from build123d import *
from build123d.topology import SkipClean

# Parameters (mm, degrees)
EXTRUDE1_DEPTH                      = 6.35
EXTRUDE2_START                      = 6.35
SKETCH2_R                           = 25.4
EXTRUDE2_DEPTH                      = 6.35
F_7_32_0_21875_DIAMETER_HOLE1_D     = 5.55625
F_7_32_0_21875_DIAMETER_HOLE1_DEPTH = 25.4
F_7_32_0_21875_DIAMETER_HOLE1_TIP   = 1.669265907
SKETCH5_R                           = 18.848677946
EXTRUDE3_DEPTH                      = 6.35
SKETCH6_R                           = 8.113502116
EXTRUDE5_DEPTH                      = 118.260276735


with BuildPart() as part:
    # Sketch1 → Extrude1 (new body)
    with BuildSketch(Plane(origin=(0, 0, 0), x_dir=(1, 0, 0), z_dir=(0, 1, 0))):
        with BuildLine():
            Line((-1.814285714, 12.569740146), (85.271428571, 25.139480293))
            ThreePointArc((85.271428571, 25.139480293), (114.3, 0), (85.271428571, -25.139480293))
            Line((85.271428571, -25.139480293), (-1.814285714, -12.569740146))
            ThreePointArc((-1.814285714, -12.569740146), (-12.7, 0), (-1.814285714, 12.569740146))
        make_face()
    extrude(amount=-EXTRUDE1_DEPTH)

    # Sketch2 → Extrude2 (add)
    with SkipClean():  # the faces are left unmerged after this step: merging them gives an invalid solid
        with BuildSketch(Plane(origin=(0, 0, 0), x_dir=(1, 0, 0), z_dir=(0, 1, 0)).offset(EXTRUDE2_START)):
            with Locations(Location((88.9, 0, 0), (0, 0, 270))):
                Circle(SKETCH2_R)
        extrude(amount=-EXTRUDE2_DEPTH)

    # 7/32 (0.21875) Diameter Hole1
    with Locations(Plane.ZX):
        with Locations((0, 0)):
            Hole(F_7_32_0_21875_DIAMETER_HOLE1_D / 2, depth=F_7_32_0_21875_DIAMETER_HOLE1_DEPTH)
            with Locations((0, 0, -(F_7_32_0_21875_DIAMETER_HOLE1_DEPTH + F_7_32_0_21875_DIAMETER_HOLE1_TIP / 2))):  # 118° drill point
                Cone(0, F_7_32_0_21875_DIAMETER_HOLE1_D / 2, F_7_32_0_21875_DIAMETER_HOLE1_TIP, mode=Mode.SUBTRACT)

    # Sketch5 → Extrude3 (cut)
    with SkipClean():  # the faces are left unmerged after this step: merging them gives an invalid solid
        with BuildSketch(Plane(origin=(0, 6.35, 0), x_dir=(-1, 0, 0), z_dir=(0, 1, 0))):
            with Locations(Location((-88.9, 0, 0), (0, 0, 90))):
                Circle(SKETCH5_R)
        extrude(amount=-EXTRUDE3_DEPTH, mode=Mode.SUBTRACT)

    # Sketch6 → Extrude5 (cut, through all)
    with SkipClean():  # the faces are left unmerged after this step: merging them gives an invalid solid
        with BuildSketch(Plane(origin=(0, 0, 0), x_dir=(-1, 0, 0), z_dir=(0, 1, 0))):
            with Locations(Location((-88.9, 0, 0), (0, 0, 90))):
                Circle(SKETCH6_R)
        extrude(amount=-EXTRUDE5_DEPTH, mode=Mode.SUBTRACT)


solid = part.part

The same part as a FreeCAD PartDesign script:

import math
import FreeCAD as App
import Part
import Sketcher
Q = App.Units.Quantity

doc = App.newDocument("Part")
body = doc.addObject("PartDesign::Body", "Body")

# Sketch on XZ plane
sketch1 = body.newObject("Sketcher::SketchObject", "Sketch")
sketch1.AttachmentSupport = (doc.getObject("XZ_Plane"), [""])
sketch1.MapMode = "FlatFace"
sketch1.addGeometry([
    Part.LineSegment(App.Vector(85, -25, 0), App.Vector(-2, -13, 0)),
    Part.ArcOfCircle(Part.Circle(App.Vector(0, 0, 0), App.Vector(0, 0, 1), 13), math.radians(98), math.radians(262)),
    Part.LineSegment(App.Vector(-2, 13, 0), App.Vector(85, 25, 0)),
    Part.ArcOfCircle(Part.Circle(App.Vector(89, 0, 0), App.Vector(0, 0, 1), 25), math.radians(-98), math.radians(98)),
], False)
sketch1.addConstraint([
    Sketcher.Constraint("Tangent", 0, 2, 1, 2),
    Sketcher.Constraint("Tangent", 1, 1, 2, 1),
    Sketcher.Constraint("Tangent", 2, 2, 3, 2),
    Sketcher.Constraint("Tangent", 3, 1, 0, 1),
    Sketcher.Constraint("Coincident", 1, 3, -1, 1),
    Sketcher.Constraint("PointOnObject", 3, 3, -1),
    Sketcher.Constraint("Radius", 3, Q("1 in")),
    Sketcher.Constraint("Radius", 1, Q("0.5 in")),
    Sketcher.Constraint("DistanceX", -1, 1, 3, 3, Q("3.5 in")),
])
pad1 = body.newObject("PartDesign::Pad", "Pad")
pad1.Profile = sketch1
pad1.Length = Q("0.25 in")

# Sketch on XZ plane
sketch2 = body.newObject("Sketcher::SketchObject", "Sketch001")
sketch2.AttachmentSupport = (doc.getObject("XZ_Plane"), [""])
sketch2.MapMode = "FlatFace"
sketch2.AttachmentOffset = App.Placement(App.Vector(0, 0, -0.25 * 25.4), App.Rotation())
sketch2.addGeometry(Part.Circle(App.Vector(89, 0, 0), App.Vector(0, 0, 1), 25), False)
sketch2.addConstraint([
    Sketcher.Constraint("PointOnObject", 0, 3, -1),
    Sketcher.Constraint("Diameter", 0, Q("2 in")),
    Sketcher.Constraint("DistanceX", -1, 1, 0, 3, Q("3.5 in")),
])
pad2 = body.newObject("PartDesign::Pad", "Pad001")
pad2.Profile = sketch2
pad2.Length = Q("0.25 in")

# Sketch on XZ plane
sketch3 = body.newObject("Sketcher::SketchObject", "Sketch002")
sketch3.AttachmentSupport = (doc.getObject("XZ_Plane"), [""])
sketch3.MapMode = "FlatFace"
sketch3.addGeometry(Part.Circle(App.Vector(0, 0, 0), App.Vector(0, 0, 1), 2.8), False)
sketch3.addConstraint([
    Sketcher.Constraint("Coincident", 0, 3, -1, 1),
    Sketcher.Constraint("Diameter", 0, Q("0.21875 in")),
])
doc.recompute()
hole = body.newObject("PartDesign::Hole", "Hole")
hole.Profile = sketch3
hole.ThreadType = "None"
hole.Diameter = Q("0.21875 in")
hole.DepthType = "Dimension"
hole.Depth = Q("1 in")
hole.DrillPoint = "Angled"
hole.DrillPointAngle = 118
hole.Reversed = True

# Sketch on XZ plane
sketch4 = body.newObject("Sketcher::SketchObject", "Sketch003")
sketch4.AttachmentSupport = (doc.getObject("XZ_Plane"), [""])
sketch4.MapMode = "FlatFace"
sketch4.AttachmentOffset = App.Placement(App.Vector(0, 0, -0.25 * 25.4), App.Rotation())
sketch4.addGeometry(Part.Circle(App.Vector(89, 0, 0), App.Vector(0, 0, 1), 19), False)
sketch4.addConstraint([
    Sketcher.Constraint("PointOnObject", 0, 3, -1),
    Sketcher.Constraint("DistanceX", -1, 1, 0, 3, Q("3.5 in")),
    Sketcher.Constraint("Diameter", 0, Q("37.697356 mm")),
])
pocket1 = body.newObject("PartDesign::Pocket", "Pocket")
pocket1.Profile = sketch4
pocket1.Length = Q("0.25 in")
pocket1.Reversed = True

# Sketch on XZ plane
sketch5 = body.newObject("Sketcher::SketchObject", "Sketch004")
sketch5.AttachmentSupport = (doc.getObject("XZ_Plane"), [""])
sketch5.MapMode = "FlatFace"
sketch5.addGeometry(Part.Circle(App.Vector(89, 0, 0), App.Vector(0, 0, 1), 8), False)
sketch5.addConstraint([
    Sketcher.Constraint("PointOnObject", 0, 3, -1),
    Sketcher.Constraint("DistanceX", -1, 1, 0, 3, Q("3.5 in")),
    Sketcher.Constraint("Diameter", 0, Q("16.227004 mm")),
])
pocket2 = body.newObject("PartDesign::Pocket", "Pocket001")
pocket2.Profile = sketch5
pocket2.Type = "ThroughAll"
pocket2.Reversed = True

doc.recompute()
